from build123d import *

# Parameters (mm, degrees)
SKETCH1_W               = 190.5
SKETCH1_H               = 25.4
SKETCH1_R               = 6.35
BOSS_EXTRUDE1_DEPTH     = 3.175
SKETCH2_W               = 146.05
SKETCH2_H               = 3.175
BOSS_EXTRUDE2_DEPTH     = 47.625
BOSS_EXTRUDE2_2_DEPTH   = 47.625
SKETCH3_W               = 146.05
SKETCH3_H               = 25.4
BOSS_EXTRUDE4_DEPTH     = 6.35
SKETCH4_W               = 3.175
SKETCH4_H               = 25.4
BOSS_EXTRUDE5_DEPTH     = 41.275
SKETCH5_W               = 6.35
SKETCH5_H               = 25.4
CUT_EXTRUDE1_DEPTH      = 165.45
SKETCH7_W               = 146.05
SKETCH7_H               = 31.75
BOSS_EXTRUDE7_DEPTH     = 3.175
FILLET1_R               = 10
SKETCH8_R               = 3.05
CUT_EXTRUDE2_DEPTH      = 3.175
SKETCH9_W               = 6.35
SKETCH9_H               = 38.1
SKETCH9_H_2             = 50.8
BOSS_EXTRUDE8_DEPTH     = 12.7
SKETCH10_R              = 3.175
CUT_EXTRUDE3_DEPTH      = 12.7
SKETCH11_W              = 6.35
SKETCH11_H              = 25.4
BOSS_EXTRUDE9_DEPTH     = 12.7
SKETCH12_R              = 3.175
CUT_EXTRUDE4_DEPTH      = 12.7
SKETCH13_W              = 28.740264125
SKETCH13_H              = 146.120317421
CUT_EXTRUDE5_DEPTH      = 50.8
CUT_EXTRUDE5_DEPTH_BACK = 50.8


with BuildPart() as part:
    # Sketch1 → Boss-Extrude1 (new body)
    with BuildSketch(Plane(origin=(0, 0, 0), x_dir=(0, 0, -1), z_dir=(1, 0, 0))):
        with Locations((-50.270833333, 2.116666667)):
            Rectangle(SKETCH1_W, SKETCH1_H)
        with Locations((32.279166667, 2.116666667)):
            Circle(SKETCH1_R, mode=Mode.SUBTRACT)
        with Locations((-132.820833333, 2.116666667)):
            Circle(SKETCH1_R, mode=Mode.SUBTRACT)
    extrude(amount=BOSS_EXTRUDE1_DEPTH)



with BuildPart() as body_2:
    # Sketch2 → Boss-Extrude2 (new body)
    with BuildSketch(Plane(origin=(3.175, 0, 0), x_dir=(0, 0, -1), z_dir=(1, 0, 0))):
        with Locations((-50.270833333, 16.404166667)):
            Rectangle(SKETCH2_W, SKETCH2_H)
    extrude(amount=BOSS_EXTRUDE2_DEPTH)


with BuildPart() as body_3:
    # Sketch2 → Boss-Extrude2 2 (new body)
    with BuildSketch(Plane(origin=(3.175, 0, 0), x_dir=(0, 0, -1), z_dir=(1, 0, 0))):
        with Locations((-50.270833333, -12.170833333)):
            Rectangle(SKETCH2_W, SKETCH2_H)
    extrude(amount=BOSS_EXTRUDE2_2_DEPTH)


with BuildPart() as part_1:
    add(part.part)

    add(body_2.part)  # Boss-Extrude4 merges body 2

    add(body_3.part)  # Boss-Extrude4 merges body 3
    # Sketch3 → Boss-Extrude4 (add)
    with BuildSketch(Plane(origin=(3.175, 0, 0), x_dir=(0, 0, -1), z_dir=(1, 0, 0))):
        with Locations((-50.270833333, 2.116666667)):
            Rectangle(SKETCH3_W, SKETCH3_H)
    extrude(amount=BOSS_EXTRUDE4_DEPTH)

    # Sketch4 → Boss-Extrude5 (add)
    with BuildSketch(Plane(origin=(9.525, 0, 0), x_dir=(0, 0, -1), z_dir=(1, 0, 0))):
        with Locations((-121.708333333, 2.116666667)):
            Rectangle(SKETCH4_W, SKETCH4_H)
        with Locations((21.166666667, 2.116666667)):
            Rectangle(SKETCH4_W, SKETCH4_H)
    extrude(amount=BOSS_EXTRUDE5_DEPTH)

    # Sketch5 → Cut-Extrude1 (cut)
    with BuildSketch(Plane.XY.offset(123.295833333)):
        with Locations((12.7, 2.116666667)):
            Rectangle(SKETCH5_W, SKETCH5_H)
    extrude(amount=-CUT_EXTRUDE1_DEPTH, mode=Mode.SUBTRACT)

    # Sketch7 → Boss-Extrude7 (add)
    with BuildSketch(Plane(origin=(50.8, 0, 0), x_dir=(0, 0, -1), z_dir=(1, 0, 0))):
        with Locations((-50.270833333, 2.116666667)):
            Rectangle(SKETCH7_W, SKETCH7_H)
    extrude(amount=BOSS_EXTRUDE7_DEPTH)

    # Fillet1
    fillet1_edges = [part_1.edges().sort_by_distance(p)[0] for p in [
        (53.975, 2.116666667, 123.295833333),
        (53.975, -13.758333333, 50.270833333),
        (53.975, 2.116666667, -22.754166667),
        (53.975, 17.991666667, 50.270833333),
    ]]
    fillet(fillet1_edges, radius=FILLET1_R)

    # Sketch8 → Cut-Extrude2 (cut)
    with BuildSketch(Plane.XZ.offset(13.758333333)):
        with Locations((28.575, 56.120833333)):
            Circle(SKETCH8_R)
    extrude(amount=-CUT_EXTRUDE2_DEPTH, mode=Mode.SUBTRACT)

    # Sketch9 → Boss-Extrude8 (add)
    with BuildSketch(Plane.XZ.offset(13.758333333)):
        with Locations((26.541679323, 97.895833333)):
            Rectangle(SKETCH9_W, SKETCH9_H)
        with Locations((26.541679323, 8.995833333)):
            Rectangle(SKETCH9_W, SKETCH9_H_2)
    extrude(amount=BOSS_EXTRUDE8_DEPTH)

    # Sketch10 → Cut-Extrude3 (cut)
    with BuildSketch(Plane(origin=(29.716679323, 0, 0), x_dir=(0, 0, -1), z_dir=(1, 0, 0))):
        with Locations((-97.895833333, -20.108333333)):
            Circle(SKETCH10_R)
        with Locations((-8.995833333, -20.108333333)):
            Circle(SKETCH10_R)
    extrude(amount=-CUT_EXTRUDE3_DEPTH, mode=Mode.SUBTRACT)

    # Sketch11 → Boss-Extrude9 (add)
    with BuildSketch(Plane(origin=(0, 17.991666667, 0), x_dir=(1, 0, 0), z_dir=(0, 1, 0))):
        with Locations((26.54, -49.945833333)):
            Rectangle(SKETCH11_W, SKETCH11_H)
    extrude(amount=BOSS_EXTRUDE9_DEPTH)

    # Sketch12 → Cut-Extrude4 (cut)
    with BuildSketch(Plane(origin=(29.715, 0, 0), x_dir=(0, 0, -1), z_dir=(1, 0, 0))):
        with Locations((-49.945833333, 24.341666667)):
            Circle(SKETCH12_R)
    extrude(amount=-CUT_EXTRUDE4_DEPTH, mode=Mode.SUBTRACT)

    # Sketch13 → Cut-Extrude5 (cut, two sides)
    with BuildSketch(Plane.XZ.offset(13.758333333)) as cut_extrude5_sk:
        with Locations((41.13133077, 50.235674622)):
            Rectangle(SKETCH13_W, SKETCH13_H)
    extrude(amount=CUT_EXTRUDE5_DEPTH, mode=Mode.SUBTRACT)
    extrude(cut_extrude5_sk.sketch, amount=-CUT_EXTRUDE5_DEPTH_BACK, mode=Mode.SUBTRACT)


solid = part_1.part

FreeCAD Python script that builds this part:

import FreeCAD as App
import Part
import Sketcher

V = App.Vector
Q = App.Units.Quantity


def edges_at(feature, points):
    """Names of the edges that pass closest to the given points."""
    edges = feature.Shape.Edges
    near = lambda p: min(range(len(edges)), key=lambda i: edges[i].distToShape(Part.Vertex(*p))[0])
    return sorted({f"Edge{near(p) + 1}" for p in points})

doc = App.newDocument("Part")
body = doc.addObject("PartDesign::Body", "Body")

sketch1 = body.newObject("Sketcher::SketchObject", "Sketch")
sketch1.AttachmentSupport = (doc.getObject("YZ_Plane"), [""])
sketch1.MapMode = "FlatFace"
sketch1.addGeometry([
    Part.LineSegment(V(15, 146, 0), V(-11, 146, 0)),
    Part.LineSegment(V(-11, 146, 0), V(-11, -45, 0)),
    Part.LineSegment(V(-11, -45, 0), V(15, -45, 0)),
    Part.LineSegment(V(15, -45, 0), V(15, 146, 0)),
    Part.Circle(V(2, 133, 0), V(0, 0, 1), 6),
    Part.Circle(V(2, -32, 0), V(0, 0, 1), 6),
], False)
sketch1.addConstraint([
    Sketcher.Constraint("Coincident", 0, 2, 1, 1),
    Sketcher.Constraint("Coincident", 1, 2, 2, 1),
    Sketcher.Constraint("Coincident", 2, 2, 3, 1),
    Sketcher.Constraint("Coincident", 3, 2, 0, 1),
    Sketcher.Constraint("Horizontal", 0),
    Sketcher.Constraint("Vertical", 1),
    Sketcher.Constraint("Horizontal", 2),
    Sketcher.Constraint("Vertical", 3),
    Sketcher.Constraint("Equal", 4, 5),
    Sketcher.Constraint("Vertical", 4, 3, 5, 3),
    Sketcher.Constraint("Diameter", 4, Q("0.5 in")),
    Sketcher.Constraint("DistanceX", 0, 2, 0, 1, Q("1 in")),
    Sketcher.Constraint("DistanceY", 1, 2, 1, 1, Q("7.5 in")),
    Sketcher.Constraint("DistanceY", 5, 3, 0, 2, Q("7 in")),
    Sketcher.Constraint("DistanceY", 1, 2, 4, 3, Q("7 in")),
    Sketcher.Constraint("DistanceX", 0, 2, 4, 3, Q("0.5 in")),
    Sketcher.Constraint("DistanceX", -1, 1, 4, 3, Q("2.116667 mm")),
    Sketcher.Constraint("DistanceY", -1, 1, 4, 3, Q("132.820833 mm")),
])
pad1 = body.newObject("PartDesign::Pad", "Pad")
pad1.Profile = sketch1
pad1.Length = Q("0.125 in")
body2 = doc.addObject("PartDesign::Body", "Body001")

sketch2 = body2.newObject("Sketcher::SketchObject", "Sketch001")
sketch2.AttachmentSupport = (doc.getObject("YZ_Plane001"), [""])
sketch2.MapMode = "FlatFace"
sketch2.AttachmentOffset = App.Placement(V(0, 0, 0.125 * 25.4), App.Rotation())
sketch2.addGeometry([
    Part.LineSegment(V(18, 123.3, 0), V(14.8, 123.3, 0)),
    Part.LineSegment(V(14.8, 123.3, 0), V(14.8, -22.8, 0)),
    Part.LineSegment(V(14.8, -22.8, 0), V(18, -22.8, 0)),
    Part.LineSegment(V(18, -22.8, 0), V(18, 123.3, 0)),
], False)
sketch2.addConstraint([
    Sketcher.Constraint("Coincident", 0, 2, 1, 1),
    Sketcher.Constraint("Coincident", 1, 2, 2, 1),
    Sketcher.Constraint("Coincident", 2, 2, 3, 1),
    Sketcher.Constraint("Coincident", 3, 2, 0, 1),
    Sketcher.Constraint("Horizontal", 0),
    Sketcher.Constraint("Vertical", 1),
    Sketcher.Constraint("Horizontal", 2),
    Sketcher.Constraint("Vertical", 3),
    Sketcher.Constraint("DistanceY", 1, 2, 1, 1, Q("5.75 in")),
    Sketcher.Constraint("DistanceX", 0, 2, 0, 1, Q("0.125 in")),
    Sketcher.Constraint("DistanceX", -1, 1, 0, 2, Q("14.816667 mm")),
    Sketcher.Constraint("DistanceY", -1, 1, 0, 2, Q("123.295833 mm")),
])
pad2 = body2.newObject("PartDesign::Pad", "Pad001")
pad2.Profile = sketch2
pad2.Length = Q("1.875 in")
body3 = doc.addObject("PartDesign::Body", "Body002")

sketch3 = body3.newObject("Sketcher::SketchObject", "Sketch002")
sketch3.AttachmentSupport = (doc.getObject("YZ_Plane002"), [""])
sketch3.MapMode = "FlatFace"
sketch3.AttachmentOffset = App.Placement(V(0, 0, 0.125 * 25.4), App.Rotation())
sketch3.addGeometry([
    Part.LineSegment(V(-10.6, 123.3, 0), V(-13.8, 123.3, 0)),
    Part.LineSegment(V(-13.8, 123.3, 0), V(-13.8, -22.8, 0)),
    Part.LineSegment(V(-13.8, -22.8, 0), V(-10.6, -22.8, 0)),
    Part.LineSegment(V(-10.6, -22.8, 0), V(-10.6, 123.3, 0)),
], False)
sketch3.addConstraint([
    Sketcher.Constraint("Coincident", 0, 2, 1, 1),
    Sketcher.Constraint("Coincident", 1, 2, 2, 1),
    Sketcher.Constraint("Coincident", 2, 2, 3, 1),
    Sketcher.Constraint("Coincident", 3, 2, 0, 1),
    Sketcher.Constraint("Horizontal", 0),
    Sketcher.Constraint("Vertical", 1),
    Sketcher.Constraint("Horizontal", 2),
    Sketcher.Constraint("Vertical", 3),
    Sketcher.Constraint("DistanceY", 1, 2, 1, 1, Q("5.75 in")),
    Sketcher.Constraint("DistanceX", 0, 2, 0, 1, Q("0.125 in")),
    Sketcher.Constraint("DistanceX", 0, 2, -1, 1, Q("13.758333 mm")),
    Sketcher.Constraint("DistanceY", -1, 1, 0, 2, Q("123.295833 mm")),
])
pad3 = body3.newObject("PartDesign::Pad", "Pad002")
pad3.Profile = sketch3
pad3.Length = Q("1.875 in")
body.AllowCompound = True
doc.recompute()

boolean = body.newObject("PartDesign::Boolean", "Boolean")
boolean.Type = "Fuse"
boolean.addObjects([body2])
doc.recompute()

boolean2 = body.newObject("PartDesign::Boolean", "Boolean001")
boolean2.Type = "Fuse"
boolean2.addObjects([body3])

sketch4 = body.newObject("Sketcher::SketchObject", "Sketch003")
sketch4.AttachmentSupport = (doc.getObject("YZ_Plane"), [""])
sketch4.MapMode = "FlatFace"
sketch4.AttachmentOffset = App.Placement(V(0, 0, 0.125 * 25.4), App.Rotation())
sketch4.addGeometry([
    Part.LineSegment(V(15, 123, 0), V(-11, 123, 0)),
    Part.LineSegment(V(-11, 123, 0), V(-11, -23, 0)),
    Part.LineSegment(V(-11, -23, 0), V(15, -23, 0)),
    Part.LineSegment(V(15, -23, 0), V(15, 123, 0)),
], False)
sketch4.addConstraint([
    Sketcher.Constraint("Coincident", 0, 2, 1, 1),
    Sketcher.Constraint("Coincident", 1, 2, 2, 1),
    Sketcher.Constraint("Coincident", 2, 2, 3, 1),
    Sketcher.Constraint("Coincident", 3, 2, 0, 1),
    Sketcher.Constraint("Horizontal", 0),
    Sketcher.Constraint("Vertical", 1),
    Sketcher.Constraint("Horizontal", 2),
    Sketcher.Constraint("Vertical", 3),
    Sketcher.Constraint("DistanceX", 0, 2, 0, 1, Q("1 in")),
    Sketcher.Constraint("DistanceY", 1, 2, 1, 1, Q("5.75 in")),
    Sketcher.Constraint("DistanceX", 0, 2, -1, 1, Q("10.583333 mm")),
    Sketcher.Constraint("DistanceY", -1, 1, 0, 2, Q("123.295833 mm")),
])
pad4 = body.newObject("PartDesign::Pad", "Pad003")
pad4.Profile = sketch4
pad4.Length = Q("0.25 in")

sketch5 = body.newObject("Sketcher::SketchObject", "Sketch004")
sketch5.AttachmentSupport = (doc.getObject("YZ_Plane"), [""])
sketch5.MapMode = "FlatFace"
sketch5.AttachmentOffset = App.Placement(V(0, 0, 0.375 * 25.4), App.Rotation())
sketch5.addGeometry([
    Part.LineSegment(V(14.8, 123.3, 0), V(-10.6, 123.3, 0)),
    Part.LineSegment(V(-10.6, 123.3, 0), V(-10.6, 120.1, 0)),
    Part.LineSegment(V(-10.6, 120.1, 0), V(14.8, 120.1, 0)),
    Part.LineSegment(V(14.8, 120.1, 0), V(14.8, 123.3, 0)),
    Part.LineSegment(V(14.8, -19.6, 0), V(-10.6, -19.6, 0)),
    Part.LineSegment(V(-10.6, -19.6, 0), V(-10.6, -22.8, 0)),
    Part.LineSegment(V(-10.6, -22.8, 0), V(14.8, -22.8, 0)),
    Part.LineSegment(V(14.8, -22.8, 0), V(14.8, -19.6, 0)),
], False)
sketch5.addConstraint([
    Sketcher.Constraint("Coincident", 0, 2, 1, 1),
    Sketcher.Constraint("Coincident", 1, 2, 2, 1),
    Sketcher.Constraint("Coincident", 2, 2, 3, 1),
    Sketcher.Constraint("Coincident", 3, 2, 0, 1),
    Sketcher.Constraint("Coincident", 4, 2, 5, 1),
    Sketcher.Constraint("Coincident", 5, 2, 6, 1),
    Sketcher.Constraint("Coincident", 6, 2, 7, 1),
    Sketcher.Constraint("Coincident", 7, 2, 4, 1),
    Sketcher.Constraint("Horizontal", 0),
    Sketcher.Constraint("Vertical", 1),
    Sketcher.Constraint("Horizontal", 2),
    Sketcher.Constraint("Vertical", 3),
    Sketcher.Constraint("Horizontal", 4),
    Sketcher.Constraint("Vertical", 5),
    Sketcher.Constraint("Horizontal", 6),
    Sketcher.Constraint("Vertical", 7),
    Sketcher.Constraint("Vertical", 1, 2, 4, 2),
    Sketcher.Constraint("Vertical", 3, 2, 6, 2),
    Sketcher.Constraint("Equal", 3, 5),
    Sketcher.Constraint("DistanceX", 0, 2, 0, 1, Q("1 in")),
    Sketcher.Constraint("DistanceY", 4, 2, 1, 2, Q("5.5 in")),
    Sketcher.Constraint("DistanceY", 1, 2, 1, 1, Q("0.125 in")),
    Sketcher.Constraint("DistanceX", 0, 2, -1, 1, Q("10.583333 mm")),
    Sketcher.Constraint("DistanceY", -1, 1, 0, 2, Q("123.295833 mm")),
])
pad5 = body.newObject("PartDesign::Pad", "Pad004")
pad5.Profile = sketch5
pad5.Length = Q("1.625 in")

sketch6 = body.newObject("Sketcher::SketchObject", "Sketch005")
sketch6.AttachmentSupport = (doc.getObject("XY_Plane"), [""])
sketch6.MapMode = "FlatFace"
sketch6.AttachmentOffset = App.Placement(V(0, 0, 123.295833), App.Rotation())
sketch6.addGeometry([
    Part.LineSegment(V(10, 15, 0), V(10, -11, 0)),
    Part.LineSegment(V(10, -11, 0), V(16, -11, 0)),
    Part.LineSegment(V(16, -11, 0), V(16, 15, 0)),
    Part.LineSegment(V(16, 15, 0), V(10, 15, 0)),
], False)
sketch6.addConstraint([
    Sketcher.Constraint("Coincident", 0, 2, 1, 1),
    Sketcher.Constraint("Coincident", 1, 2, 2, 1),
    Sketcher.Constraint("Coincident", 2, 2, 3, 1),
    Sketcher.Constraint("Coincident", 3, 2, 0, 1),
    Sketcher.Constraint("Vertical", 0),
    Sketcher.Constraint("Horizontal", 1),
    Sketcher.Constraint("Vertical", 2),
    Sketcher.Constraint("Horizontal", 3),
    Sketcher.Constraint("DistanceY", 0, 2, 0, 1, Q("1 in")),
    Sketcher.Constraint("DistanceX", 1, 1, 1, 2, Q("0.25 in")),
    Sketcher.Constraint("DistanceX", -1, 1, 0, 2, Q("0.375 in")),
    Sketcher.Constraint("DistanceY", 0, 2, -1, 1, Q("10.583333 mm")),
])
pocket1 = body.newObject("PartDesign::Pocket", "Pocket")
pocket1.Profile = sketch6
pocket1.Length = 165.45

sketch7 = body.newObject("Sketcher::SketchObject", "Sketch006")
sketch7.AttachmentSupport = (doc.getObject("YZ_Plane"), [""])
sketch7.MapMode = "FlatFace"
sketch7.AttachmentOffset = App.Placement(V(0, 0, 2 * 25.4), App.Rotation())
sketch7.addGeometry([
    Part.LineSegment(V(18, 123, 0), V(-14, 123, 0)),
    Part.LineSegment(V(-14, 123, 0), V(-14, -23, 0)),
    Part.LineSegment(V(-14, -23, 0), V(18, -23, 0)),
    Part.LineSegment(V(18, -23, 0), V(18, 123, 0)),
], False)
sketch7.addConstraint([
    Sketcher.Constraint("Coincident", 0, 2, 1, 1),
    Sketcher.Constraint("Coincident", 1, 2, 2, 1),
    Sketcher.Constraint("Coincident", 2, 2, 3, 1),
    Sketcher.Constraint("Coincident", 3, 2, 0, 1),
    Sketcher.Constraint("Horizontal", 0),
    Sketcher.Constraint("Vertical", 1),
    Sketcher.Constraint("Horizontal", 2),
    Sketcher.Constraint("Vertical", 3),
    Sketcher.Constraint("DistanceX", 0, 2, 0, 1, Q("1.25 in")),
    Sketcher.Constraint("DistanceY", 1, 2, 1, 1, Q("5.75 in")),
    Sketcher.Constraint("DistanceX", 0, 2, -1, 1, Q("13.758333 mm")),
    Sketcher.Constraint("DistanceY", -1, 1, 0, 2, Q("123.295833 mm")),
])
pad6 = body.newObject("PartDesign::Pad", "Pad005")
pad6.Profile = sketch7
pad6.Length = Q("0.125 in")
doc.recompute()

fillet = body.newObject("PartDesign::Fillet", "Fillet")
fillet.Base = (pad6, edges_at(pad6, [
    (53.975, 2.117, 123.296),
    (53.975, -13.758, 50.271),
    (53.975, 2.117, -22.754),
    (53.975, 17.992, 50.271),
]))
fillet.Radius = 10

sketch8 = body.newObject("Sketcher::SketchObject", "Sketch007")
sketch8.AttachmentSupport = (doc.getObject("XZ_Plane"), [""])
sketch8.MapMode = "FlatFace"
sketch8.AttachmentOffset = App.Placement(V(0, 0, 13.758333), App.Rotation())
sketch8.addGeometry(Part.Circle(V(28.6, 56.1, 0), V(0, 0, 1), 3), False)
sketch8.addConstraint([
    Sketcher.Constraint("Diameter", 0, Q("6.1 mm")),
    Sketcher.Constraint("DistanceX", -1, 1, 0, 3, Q("1.125 in")),
    Sketcher.Constraint("DistanceY", -1, 1, 0, 3, Q("56.120833 mm")),
])
pocket2 = body.newObject("PartDesign::Pocket", "Pocket001")
pocket2.Profile = sketch8
pocket2.Length = Q("0.125 in")

sketch9 = body.newObject("Sketcher::SketchObject", "Sketch008")
sketch9.AttachmentSupport = (doc.getObject("XZ_Plane"), [""])
sketch9.MapMode = "FlatFace"
sketch9.AttachmentOffset = App.Placement(V(0, 0, 13.758333), App.Rotation())
sketch9.addGeometry([
    Part.LineSegment(V(23, 117, 0), V(23, 79, 0)),
    Part.LineSegment(V(23, 79, 0), V(30, 79, 0)),
    Part.LineSegment(V(30, 79, 0), V(30, 117, 0)),
    Part.LineSegment(V(30, 117, 0), V(23, 117, 0)),
    Part.LineSegment(V(23, 34, 0), V(23, -16, 0)),
    Part.LineSegment(V(23, -16, 0), V(30, -16, 0)),
    Part.LineSegment(V(30, -16, 0), V(30, 34, 0)),
    Part.LineSegment(V(30, 34, 0), V(23, 34, 0)),
], False)
sketch9.addConstraint([
    Sketcher.Constraint("Coincident", 0, 2, 1, 1),
    Sketcher.Constraint("Coincident", 1, 2, 2, 1),
    Sketcher.Constraint("Coincident", 2, 2, 3, 1),
    Sketcher.Constraint("Coincident", 3, 2, 0, 1),
    Sketcher.Constraint("Coincident", 4, 2, 5, 1),
    Sketcher.Constraint("Coincident", 5, 2, 6, 1),
    Sketcher.Constraint("Coincident", 6, 2, 7, 1),
    Sketcher.Constraint("Coincident", 7, 2, 4, 1),
    Sketcher.Constraint("Vertical", 0),
    Sketcher.Constraint("Horizontal", 1),
    Sketcher.Constraint("Vertical", 2),
    Sketcher.Constraint("Horizontal", 3),
    Sketcher.Constraint("Vertical", 4),
    Sketcher.Constraint("Horizontal", 5),
    Sketcher.Constraint("Vertical", 6),
    Sketcher.Constraint("Horizontal", 7),
    Sketcher.Constraint("Vertical", 3, 2, 4, 2),
    Sketcher.Constraint("Vertical", 2, 2, 5, 2),
    Sketcher.Constraint("DistanceY", 4, 2, 4, 1, Q("2 in")),
    Sketcher.Constraint("DistanceY", 0, 2, 0, 1, Q("1.5 in")),
    Sketcher.Constraint("DistanceX", 1, 1, 1, 2, Q("0.25 in")),
    Sketcher.Constraint("DistanceY", 4, 2, 0, 2, Q("3.75 in")),
    Sketcher.Constraint("DistanceX", -1, 1, 0, 2, Q("23.366679 mm")),
    Sketcher.Constraint("DistanceY", -1, 1, 0, 2, Q("78.845833 mm")),
])
pad7 = body.newObject("PartDesign::Pad", "Pad006")
pad7.Profile = sketch9
pad7.Length = Q("0.5 in")

sketch10 = body.newObject("Sketcher::SketchObject", "Sketch009")
sketch10.AttachmentSupport = (doc.getObject("YZ_Plane"), [""])
sketch10.MapMode = "FlatFace"
sketch10.AttachmentOffset = App.Placement(V(0, 0, 29.716679), App.Rotation())
sketch10.addGeometry([
    Part.Circle(V(-20.1, 97.9, 0), V(0, 0, 1), 3.2),
    Part.Circle(V(-20.1, 9, 0), V(0, 0, 1), 3.2),
], False)
sketch10.addConstraint([
    Sketcher.Constraint("Equal", 0, 1),
    Sketcher.Constraint("Vertical", 0, 3, 1, 3),
    Sketcher.Constraint("Diameter", 0, Q("0.25 in")),
    Sketcher.Constraint("DistanceY", 1, 3, 0, 3, Q("3.5 in")),
    Sketcher.Constraint("DistanceX", 0, 3, -1, 1, Q("20.108333 mm")),
    Sketcher.Constraint("DistanceY", -1, 1, 0, 3, Q("97.895833 mm")),
])
pocket3 = body.newObject("PartDesign::Pocket", "Pocket002")
pocket3.Profile = sketch10
pocket3.Length = Q("0.5 in")

sketch11 = body.newObject("Sketcher::SketchObject", "Sketch010")
sketch11.AttachmentSupport = (doc.getObject("XZ_Plane"), [""])
sketch11.MapMode = "FlatFace"
sketch11.AttachmentOffset = App.Placement(V(0, 0, -17.991667), App.Rotation())
sketch11.addGeometry([
    Part.LineSegment(V(23, 37, 0), V(23, 63, 0)),
    Part.LineSegment(V(23, 63, 0), V(30, 63, 0)),
    Part.LineSegment(V(30, 63, 0), V(30, 37, 0)),
    Part.LineSegment(V(30, 37, 0), V(23, 37, 0)),
], False)
sketch11.addConstraint([
    Sketcher.Constraint("Coincident", 0, 2, 1, 1),
    Sketcher.Constraint("Coincident", 1, 2, 2, 1),
    Sketcher.Constraint("Coincident", 2, 2, 3, 1),
    Sketcher.Constraint("Coincident", 3, 2, 0, 1),
    Sketcher.Constraint("Vertical", 0),
    Sketcher.Constraint("Horizontal", 1),
    Sketcher.Constraint("Vertical", 2),
    Sketcher.Constraint("Horizontal", 3),
    Sketcher.Constraint("DistanceY", 0, 1, 0, 2, Q("1 in")),
    Sketcher.Constraint("DistanceX", 1, 1, 1, 2, Q("0.25 in")),
    Sketcher.Constraint("DistanceX", -1, 1, 0, 2, Q("23.365 mm")),
    Sketcher.Constraint("DistanceY", -1, 1, 0, 2, Q("62.645833 mm")),
])
pad8 = body.newObject("PartDesign::Pad", "Pad007")
pad8.Profile = sketch11
pad8.Length = Q("0.5 in")
pad8.Reversed = True

sketch12 = body.newObject("Sketcher::SketchObject", "Sketch011")
sketch12.AttachmentSupport = (doc.getObject("YZ_Plane"), [""])
sketch12.MapMode = "FlatFace"
sketch12.AttachmentOffset = App.Placement(V(0, 0, 29.715), App.Rotation())
sketch12.addGeometry(Part.Circle(V(24.3, 49.9, 0), V(0, 0, 1), 3.2), False)
sketch12.addConstraint([
    Sketcher.Constraint("Diameter", 0, Q("0.25 in")),
    Sketcher.Constraint("DistanceX", -1, 1, 0, 3, Q("24.341667 mm")),
    Sketcher.Constraint("DistanceY", -1, 1, 0, 3, Q("49.945833 mm")),
])
pocket4 = body.newObject("PartDesign::Pocket", "Pocket003")
pocket4.Profile = sketch12
pocket4.Length = Q("0.5 in")

sketch13 = body.newObject("Sketcher::SketchObject", "Sketch012")
sketch13.AttachmentSupport = (doc.getObject("XZ_Plane"), [""])
sketch13.MapMode = "FlatFace"
sketch13.AttachmentOffset = App.Placement(V(0, 0, 13.758333), App.Rotation())
sketch13.addGeometry([
    Part.LineSegment(V(27, 123, 0), V(27, -23, 0)),
    Part.LineSegment(V(27, -23, 0), V(56, -23, 0)),
    Part.LineSegment(V(56, -23, 0), V(56, 123, 0)),
    Part.LineSegment(V(56, 123, 0), V(27, 123, 0)),
], False)
sketch13.addConstraint([
    Sketcher.Constraint("Coincident", 0, 2, 1, 1),
    Sketcher.Constraint("Coincident", 1, 2, 2, 1),
    Sketcher.Constraint("Coincident", 2, 2, 3, 1),
    Sketcher.Constraint("Coincident", 3, 2, 0, 1),
    Sketcher.Constraint("Vertical", 0),
    Sketcher.Constraint("Horizontal", 1),
    Sketcher.Constraint("Vertical", 2),
    Sketcher.Constraint("Horizontal", 3),
    Sketcher.Constraint("DistanceX", -1, 1, 0, 2, Q("26.761199 mm")),
    Sketcher.Constraint("DistanceX", 1, 1, 1, 2, Q("28.740264 mm")),
    Sketcher.Constraint("DistanceY", 0, 2, 0, 1, Q("146.120317 mm")),
    Sketcher.Constraint("DistanceY", 0, 2, -1, 1, Q("22.824484 mm")),
])
pocket5 = body.newObject("PartDesign::Pocket", "Pocket004")
pocket5.Profile = sketch13
pocket5.Type = "ThroughAll"
pocket5.Midplane = True

doc.recompute()
